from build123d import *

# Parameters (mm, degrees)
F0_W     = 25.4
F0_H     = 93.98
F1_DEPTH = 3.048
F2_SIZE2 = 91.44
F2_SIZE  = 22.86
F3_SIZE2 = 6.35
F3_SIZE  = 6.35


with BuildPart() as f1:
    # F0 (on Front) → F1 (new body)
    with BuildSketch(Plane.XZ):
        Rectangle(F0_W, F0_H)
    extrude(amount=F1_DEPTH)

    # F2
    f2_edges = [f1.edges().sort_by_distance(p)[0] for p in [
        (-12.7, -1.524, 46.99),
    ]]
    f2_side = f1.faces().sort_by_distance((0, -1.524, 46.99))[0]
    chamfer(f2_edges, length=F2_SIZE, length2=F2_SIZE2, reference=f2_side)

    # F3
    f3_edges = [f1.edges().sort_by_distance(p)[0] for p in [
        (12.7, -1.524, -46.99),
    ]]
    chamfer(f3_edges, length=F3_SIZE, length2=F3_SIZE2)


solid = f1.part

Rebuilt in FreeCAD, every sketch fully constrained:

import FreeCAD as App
import Part
import Sketcher
from FreeCAD import Vector
Q = App.Units.Quantity


def edges_at(feature, points):
    """Names of the edges that pass closest to the given points."""
    edges = feature.Shape.Edges
    near = lambda p: min(range(len(edges)), key=lambda i: edges[i].distToShape(Part.Vertex(*p))[0])
    return sorted({f"Edge{near(p) + 1}" for p in points})

doc = App.newDocument("Part")
body = doc.addObject("PartDesign::Body", "Body")

# Sketch on XZ plane
sketch1 = doc.addObject("Sketcher::SketchObject", "Sketch")
body.addObject(sketch1)
sketch1.AttachmentSupport = (doc.XZ_Plane, [""])
sketch1.MapMode = "FlatFace"
sketch1.addGeometry([
    Part.LineSegment(Vector(-13, 47, 0), Vector(-13, -47, 0)),
    Part.LineSegment(Vector(-13, -47, 0), Vector(13, -47, 0)),
    Part.LineSegment(Vector(13, -47, 0), Vector(13, 47, 0)),
    Part.LineSegment(Vector(13, 47, 0), Vector(-13, 47, 0)),
], False)
sketch1.addConstraint([
    Sketcher.Constraint("Coincident", 0, 2, 1, 1),
    Sketcher.Constraint("Coincident", 1, 2, 2, 1),
    Sketcher.Constraint("Coincident", 2, 2, 3, 1),
    Sketcher.Constraint("Coincident", 3, 2, 0, 1),
    Sketcher.Constraint("Vertical", 0),
    Sketcher.Constraint("Horizontal", 1),
    Sketcher.Constraint("Vertical", 2),
    Sketcher.Constraint("Horizontal", 3),
    Sketcher.Constraint("Symmetric", 0, 2, 2, 2, -1, 1),
    Sketcher.Constraint("DistanceX", 1, 1, 1, 2, Q("1 in")),
    Sketcher.Constraint("DistanceY", 0, 2, 0, 1, Q("3.7 in")),
])
pad1 = doc.addObject("PartDesign::Pad", "Pad")
body.addObject(pad1)
pad1.Profile = sketch1
pad1.Length = Q("0.12 in")
doc.recompute()

chamfer = doc.addObject("PartDesign::Chamfer", "Chamfer")
body.addObject(chamfer)
chamfer.Base = (pad1, edges_at(pad1, [(-12.7, -1.524, 46.99)]))
chamfer.ChamferType = "Two distances"
chamfer.Size = Q("0.9 in")
chamfer.Size2 = Q("3.6 in")
chamfer.FlipDirection = True
doc.recompute()

chamfer2 = doc.addObject("PartDesign::Chamfer", "Chamfer001")
body.addObject(chamfer2)
chamfer2.Base = (chamfer, edges_at(chamfer, [(12.7, -1.524, -46.99)]))
chamfer2.ChamferType = "Two distances"
chamfer2.Size = Q("0.25 in")
chamfer2.Size2 = Q("0.25 in")

doc.recompute()
